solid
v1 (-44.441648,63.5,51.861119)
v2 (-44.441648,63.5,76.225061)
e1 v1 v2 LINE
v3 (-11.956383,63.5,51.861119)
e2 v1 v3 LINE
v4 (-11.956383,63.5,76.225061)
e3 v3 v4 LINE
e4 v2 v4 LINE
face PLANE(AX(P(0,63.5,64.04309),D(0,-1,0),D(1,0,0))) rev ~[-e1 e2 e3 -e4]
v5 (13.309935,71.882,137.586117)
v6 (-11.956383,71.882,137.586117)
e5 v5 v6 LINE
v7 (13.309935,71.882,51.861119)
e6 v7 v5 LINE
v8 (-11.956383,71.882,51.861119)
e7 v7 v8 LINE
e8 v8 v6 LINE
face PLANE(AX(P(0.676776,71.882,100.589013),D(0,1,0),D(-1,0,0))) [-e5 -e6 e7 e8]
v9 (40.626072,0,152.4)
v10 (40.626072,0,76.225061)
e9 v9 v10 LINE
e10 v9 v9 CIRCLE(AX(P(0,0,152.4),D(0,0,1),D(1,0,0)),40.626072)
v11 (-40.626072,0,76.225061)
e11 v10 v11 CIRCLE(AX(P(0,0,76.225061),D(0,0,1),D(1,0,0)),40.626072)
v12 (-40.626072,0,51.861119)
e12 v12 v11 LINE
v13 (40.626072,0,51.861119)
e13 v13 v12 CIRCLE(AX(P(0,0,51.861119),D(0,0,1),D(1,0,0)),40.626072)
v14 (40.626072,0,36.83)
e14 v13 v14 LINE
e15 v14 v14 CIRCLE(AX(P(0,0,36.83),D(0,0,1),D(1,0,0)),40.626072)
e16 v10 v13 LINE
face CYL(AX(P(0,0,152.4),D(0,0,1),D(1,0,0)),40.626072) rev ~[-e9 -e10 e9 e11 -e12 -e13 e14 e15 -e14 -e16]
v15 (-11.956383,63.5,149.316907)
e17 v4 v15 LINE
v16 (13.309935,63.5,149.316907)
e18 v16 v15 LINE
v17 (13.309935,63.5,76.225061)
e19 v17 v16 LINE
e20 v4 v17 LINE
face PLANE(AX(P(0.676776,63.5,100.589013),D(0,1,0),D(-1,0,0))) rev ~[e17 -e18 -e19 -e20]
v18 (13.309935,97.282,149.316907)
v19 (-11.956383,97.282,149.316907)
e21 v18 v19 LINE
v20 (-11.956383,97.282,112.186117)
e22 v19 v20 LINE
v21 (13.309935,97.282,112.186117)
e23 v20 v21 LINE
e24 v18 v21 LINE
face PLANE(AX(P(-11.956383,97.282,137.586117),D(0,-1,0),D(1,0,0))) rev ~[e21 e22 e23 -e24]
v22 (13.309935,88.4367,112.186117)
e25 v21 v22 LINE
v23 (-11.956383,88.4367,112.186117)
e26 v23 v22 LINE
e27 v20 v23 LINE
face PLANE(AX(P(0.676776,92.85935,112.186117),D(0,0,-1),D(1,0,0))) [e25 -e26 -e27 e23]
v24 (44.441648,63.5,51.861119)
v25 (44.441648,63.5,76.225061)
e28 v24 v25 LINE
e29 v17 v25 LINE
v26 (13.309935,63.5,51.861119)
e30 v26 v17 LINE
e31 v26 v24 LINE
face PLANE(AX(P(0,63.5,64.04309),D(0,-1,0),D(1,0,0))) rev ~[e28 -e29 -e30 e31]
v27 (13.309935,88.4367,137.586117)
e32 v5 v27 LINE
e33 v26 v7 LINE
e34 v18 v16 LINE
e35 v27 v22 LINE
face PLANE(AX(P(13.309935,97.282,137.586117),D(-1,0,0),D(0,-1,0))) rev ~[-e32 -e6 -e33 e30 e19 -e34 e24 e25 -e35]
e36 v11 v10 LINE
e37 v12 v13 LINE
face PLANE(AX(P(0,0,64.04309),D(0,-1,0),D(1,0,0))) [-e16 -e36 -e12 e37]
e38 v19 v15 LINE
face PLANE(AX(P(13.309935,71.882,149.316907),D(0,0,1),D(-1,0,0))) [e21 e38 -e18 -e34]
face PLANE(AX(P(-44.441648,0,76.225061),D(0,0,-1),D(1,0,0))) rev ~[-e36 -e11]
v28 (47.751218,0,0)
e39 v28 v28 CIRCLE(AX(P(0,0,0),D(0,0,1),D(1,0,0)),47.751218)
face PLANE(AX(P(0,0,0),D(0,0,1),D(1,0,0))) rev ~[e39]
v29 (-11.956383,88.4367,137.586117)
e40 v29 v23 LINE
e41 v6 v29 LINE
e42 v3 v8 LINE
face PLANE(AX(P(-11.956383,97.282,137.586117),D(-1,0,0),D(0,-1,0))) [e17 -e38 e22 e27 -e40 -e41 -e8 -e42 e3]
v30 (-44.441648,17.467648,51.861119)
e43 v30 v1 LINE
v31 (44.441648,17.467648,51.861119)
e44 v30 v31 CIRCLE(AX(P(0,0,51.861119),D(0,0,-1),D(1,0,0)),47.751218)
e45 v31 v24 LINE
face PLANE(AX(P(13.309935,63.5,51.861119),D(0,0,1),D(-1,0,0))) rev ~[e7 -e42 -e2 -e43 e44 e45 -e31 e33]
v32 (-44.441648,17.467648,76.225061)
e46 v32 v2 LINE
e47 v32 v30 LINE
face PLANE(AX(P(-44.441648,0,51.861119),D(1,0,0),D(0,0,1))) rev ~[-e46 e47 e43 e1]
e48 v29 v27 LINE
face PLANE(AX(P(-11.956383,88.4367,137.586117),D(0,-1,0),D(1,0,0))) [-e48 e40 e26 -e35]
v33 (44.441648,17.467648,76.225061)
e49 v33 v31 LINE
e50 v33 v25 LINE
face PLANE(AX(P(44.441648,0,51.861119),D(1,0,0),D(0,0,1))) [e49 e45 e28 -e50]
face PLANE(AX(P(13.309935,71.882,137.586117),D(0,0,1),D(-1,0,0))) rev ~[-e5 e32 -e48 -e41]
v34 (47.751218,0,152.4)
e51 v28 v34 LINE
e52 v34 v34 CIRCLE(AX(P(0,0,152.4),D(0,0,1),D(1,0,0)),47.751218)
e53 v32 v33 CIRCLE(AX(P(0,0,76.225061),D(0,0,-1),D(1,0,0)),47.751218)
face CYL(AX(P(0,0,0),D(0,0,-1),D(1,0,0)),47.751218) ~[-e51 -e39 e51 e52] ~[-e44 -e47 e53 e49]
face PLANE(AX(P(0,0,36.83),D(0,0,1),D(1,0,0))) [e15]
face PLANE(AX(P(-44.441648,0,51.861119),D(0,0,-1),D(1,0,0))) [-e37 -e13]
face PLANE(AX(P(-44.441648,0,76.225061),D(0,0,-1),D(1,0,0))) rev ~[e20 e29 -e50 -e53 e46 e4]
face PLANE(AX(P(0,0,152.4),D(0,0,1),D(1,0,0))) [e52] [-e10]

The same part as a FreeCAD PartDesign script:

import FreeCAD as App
import Part
import Sketcher
Q = App.Units.Quantity

doc = App.newDocument("Part")
body = doc.addObject("PartDesign::Body", "Body")

# Sketch on XY plane
sketch1 = body.newObject("Sketcher::SketchObject", "Sketch")
sketch1.AttachmentSupport = (doc.getObject("XY_Plane"), [""])
sketch1.MapMode = "FlatFace"
sketch1.addGeometry(Part.Circle(App.Vector(0, 0, 0), App.Vector(0, 0, 1), 47.751218), False)
sketch1.addConstraint(Sketcher.Constraint("Coincident", 0, 3, -1, 1))
sketch1.addConstraint(Sketcher.Constraint("Diameter", 0, Q("95.502436 mm")))
pad1 = body.newObject("PartDesign::Pad", "Pad")
pad1.Profile = sketch1
pad1.Length = Q("6 in")

# Sketch on XY plane
sketch2 = body.newObject("Sketcher::SketchObject", "Sketch001")
sketch2.AttachmentSupport = (doc.getObject("XY_Plane"), [""])
sketch2.MapMode = "FlatFace"
sketch2.AttachmentOffset = App.Placement(App.Vector(0, 0, 6 * 25.4), App.Rotation())
sketch2.addGeometry(Part.Circle(App.Vector(0, 0, 0), App.Vector(0, 0, 1), 40.626072), False)
sketch2.addConstraint(Sketcher.Constraint("Coincident", 0, 3, -1, 1))
sketch2.addConstraint(Sketcher.Constraint("Diameter", 0, Q("81.252144 mm")))
pocket1 = body.newObject("PartDesign::Pocket", "Pocket")
pocket1.Profile = sketch2
pocket1.Length = Q("4.55 in")

# Sketch on XZ plane
sketch3 = body.newObject("Sketcher::SketchObject", "Sketch002")
sketch3.AttachmentSupport = (doc.getObject("XZ_Plane"), [""])
sketch3.MapMode = "FlatFace"
sketch3.addGeometry(Part.LineSegment(App.Vector(-44.441648, 76.225061, 0), App.Vector(-44.441648, 51.861119, 0)), False)
sketch3.addGeometry(Part.LineSegment(App.Vector(-44.441648, 51.861119, 0), App.Vector(44.441648, 51.861119, 0)), False)
sketch3.addGeometry(Part.LineSegment(App.Vector(44.441648, 51.861119, 0), App.Vector(44.441648, 76.225061, 0)), False)
sketch3.addGeometry(Part.LineSegment(App.Vector(44.441648, 76.225061, 0), App.Vector(-44.441648, 76.225061, 0)), False)
sketch3.addConstraint(Sketcher.Constraint("Coincident", 0, 2, 1, 1))
sketch3.addConstraint(Sketcher.Constraint("Coincident", 1, 2, 2, 1))
sketch3.addConstraint(Sketcher.Constraint("Coincident", 2, 2, 3, 1))
sketch3.addConstraint(Sketcher.Constraint("Coincident", 3, 2, 0, 1))
sketch3.addConstraint(Sketcher.Constraint("Vertical", 0))
sketch3.addConstraint(Sketcher.Constraint("Horizontal", 1))
sketch3.addConstraint(Sketcher.Constraint("Vertical", 2))
sketch3.addConstraint(Sketcher.Constraint("Horizontal", 3))
sketch3.addConstraint(Sketcher.Constraint("DistanceY", 0, 2, 0, 1, Q("24.363942 mm")))
sketch3.addConstraint(Sketcher.Constraint("DistanceX", 1, 1, 1, 2, Q("88.883296 mm")))
sketch3.addConstraint(Sketcher.Constraint("DistanceY", -1, 1, 0, 2, Q("51.861119 mm")))
sketch3.addConstraint(Sketcher.Constraint("DistanceX", 0, 2, -1, 1, Q("44.441648 mm")))
pad2 = body.newObject("PartDesign::Pad", "Pad001")
pad2.Profile = sketch3
pad2.Length = Q("2.5 in")
pad2.Reversed = True

# Sketch on XZ plane
sketch4 = body.newObject("Sketcher::SketchObject", "Sketch003")
sketch4.AttachmentSupport = (doc.getObject("XZ_Plane"), [""])
sketch4.MapMode = "FlatFace"
sketch4.AttachmentOffset = App.Placement(App.Vector(0, 0, -2.5 * 25.4), App.Rotation())
sketch4.addGeometry(Part.LineSegment(App.Vector(13.309935, 149.316907, 0), App.Vector(13.309935, 51.861119, 0)), False)
sketch4.addGeometry(Part.LineSegment(App.Vector(13.309935, 51.861119, 0), App.Vector(-11.956383, 51.861119, 0)), False)
sketch4.addGeometry(Part.LineSegment(App.Vector(-11.956383, 51.861119, 0), App.Vector(-11.956383, 149.316907, 0)), False)
sketch4.addGeometry(Part.LineSegment(App.Vector(-11.956383, 149.316907, 0), App.Vector(13.309935, 149.316907, 0)), False)
sketch4.addConstraint(Sketcher.Constraint("Coincident", 0, 2, 1, 1))
sketch4.addConstraint(Sketcher.Constraint("Coincident", 1, 2, 2, 1))
sketch4.addConstraint(Sketcher.Constraint("Coincident", 2, 2, 3, 1))
sketch4.addConstraint(Sketcher.Constraint("Coincident", 3, 2, 0, 1))
sketch4.addConstraint(Sketcher.Constraint("Vertical", 0))
sketch4.addConstraint(Sketcher.Constraint("Horizontal", 1))
sketch4.addConstraint(Sketcher.Constraint("Vertical", 2))
sketch4.addConstraint(Sketcher.Constraint("Horizontal", 3))
sketch4.addConstraint(Sketcher.Constraint("DistanceX", 1, 2, 1, 1, Q("25.266318 mm")))
sketch4.addConstraint(Sketcher.Constraint("DistanceY", 0, 2, 0, 1, Q("97.455788 mm")))
sketch4.addConstraint(Sketcher.Constraint("DistanceY", -1, 1, 0, 2, Q("51.861119 mm")))
sketch4.addConstraint(Sketcher.Constraint("DistanceX", -1, 1, 0, 2, Q("13.309935 mm")))
pad3 = body.newObject("PartDesign::Pad", "Pad002")
pad3.Profile = sketch4
pad3.Length = Q("0.33 in")
pad3.Reversed = True

# Sketch on XZ plane
sketch5 = body.newObject("Sketcher::SketchObject", "Sketch004")
sketch5.AttachmentSupport = (doc.getObject("XZ_Plane"), [""])
sketch5.MapMode = "FlatFace"
sketch5.AttachmentOffset = App.Placement(App.Vector(0, 0, -2.83 * 25.4), App.Rotation())
sketch5.addGeometry(Part.LineSegment(App.Vector(13.309935, 149.316907, 0), App.Vector(13.309935, 137.586117, 0)), False)
sketch5.addGeometry(Part.LineSegment(App.Vector(13.309935, 137.586117, 0), App.Vector(-11.956383, 137.586117, 0)), False)
sketch5.addGeometry(Part.LineSegment(App.Vector(-11.956383, 137.586117, 0), App.Vector(-11.956383, 149.316907, 0)), False)
sketch5.addGeometry(Part.LineSegment(App.Vector(-11.956383, 149.316907, 0), App.Vector(13.309935, 149.316907, 0)), False)
sketch5.addConstraint(Sketcher.Constraint("Coincident", 0, 2, 1, 1))
sketch5.addConstraint(Sketcher.Constraint("Coincident", 1, 2, 2, 1))
sketch5.addConstraint(Sketcher.Constraint("Coincident", 2, 2, 3, 1))
sketch5.addConstraint(Sketcher.Constraint("Coincident", 3, 2, 0, 1))
sketch5.addConstraint(Sketcher.Constraint("Vertical", 0))
sketch5.addConstraint(Sketcher.Constraint("Horizontal", 1))
sketch5.addConstraint(Sketcher.Constraint("Vertical", 2))
sketch5.addConstraint(Sketcher.Constraint("Horizontal", 3))
sketch5.addConstraint(Sketcher.Constraint("DistanceY", 0, 2, 0, 1, Q("11.73079 mm")))
sketch5.addConstraint(Sketcher.Constraint("DistanceX", 1, 2, 1, 1, Q("25.266318 mm")))
sketch5.addConstraint(Sketcher.Constraint("DistanceX", -1, 1, 0, 2, Q("13.309935 mm")))
sketch5.addConstraint(Sketcher.Constraint("DistanceY", -1, 1, 0, 2, Q("137.586117 mm")))
pad4 = body.newObject("PartDesign::Pad", "Pad003")
pad4.Profile = sketch5
pad4.Length = Q("1 in")
pad4.Reversed = True

# Sketch on XY plane
sketch6 = body.newObject("Sketcher::SketchObject", "Sketch005")
sketch6.AttachmentSupport = (doc.getObject("XY_Plane"), [""])
sketch6.MapMode = "FlatFace"
sketch6.AttachmentOffset = App.Placement(App.Vector(0, 0, 137.586117), App.Rotation())
sketch6.addGeometry(Part.LineSegment(App.Vector(-11.956383, 88.4367, 0), App.Vector(-11.956383, 97.282, 0)), False)
sketch6.addGeometry(Part.LineSegment(App.Vector(-11.956383, 97.282, 0), App.Vector(13.309935, 97.282, 0)), False)
sketch6.addGeometry(Part.LineSegment(App.Vector(13.309935, 97.282, 0), App.Vector(13.309935, 88.4367, 0)), False)
sketch6.addGeometry(Part.LineSegment(App.Vector(13.309935, 88.4367, 0), App.Vector(-11.956383, 88.4367, 0)), False)
sketch6.addConstraint(Sketcher.Constraint("Coincident", 0, 2, 1, 1))
sketch6.addConstraint(Sketcher.Constraint("Coincident", 1, 2, 2, 1))
sketch6.addConstraint(Sketcher.Constraint("Coincident", 2, 2, 3, 1))
sketch6.addConstraint(Sketcher.Constraint("Coincident", 3, 2, 0, 1))
sketch6.addConstraint(Sketcher.Constraint("Vertical", 0))
sketch6.addConstraint(Sketcher.Constraint("Horizontal", 1))
sketch6.addConstraint(Sketcher.Constraint("Vertical", 2))
sketch6.addConstraint(Sketcher.Constraint("Horizontal", 3))
sketch6.addConstraint(Sketcher.Constraint("DistanceY", -1, 1, 0, 2, Q("3.83 in")))
sketch6.addConstraint(Sketcher.Constraint("DistanceY", 0, 1, 0, 2, Q("8.8453 mm")))
sketch6.addConstraint(Sketcher.Constraint("DistanceX", 1, 1, 1, 2, Q("25.266318 mm")))
sketch6.addConstraint(Sketcher.Constraint("DistanceX", 0, 2, -1, 1, Q("11.956383 mm")))
pad5 = body.newObject("PartDesign::Pad", "Pad004")
pad5.Profile = sketch6
pad5.Length = Q("1 in")
pad5.Reversed = True

doc.recompute()
